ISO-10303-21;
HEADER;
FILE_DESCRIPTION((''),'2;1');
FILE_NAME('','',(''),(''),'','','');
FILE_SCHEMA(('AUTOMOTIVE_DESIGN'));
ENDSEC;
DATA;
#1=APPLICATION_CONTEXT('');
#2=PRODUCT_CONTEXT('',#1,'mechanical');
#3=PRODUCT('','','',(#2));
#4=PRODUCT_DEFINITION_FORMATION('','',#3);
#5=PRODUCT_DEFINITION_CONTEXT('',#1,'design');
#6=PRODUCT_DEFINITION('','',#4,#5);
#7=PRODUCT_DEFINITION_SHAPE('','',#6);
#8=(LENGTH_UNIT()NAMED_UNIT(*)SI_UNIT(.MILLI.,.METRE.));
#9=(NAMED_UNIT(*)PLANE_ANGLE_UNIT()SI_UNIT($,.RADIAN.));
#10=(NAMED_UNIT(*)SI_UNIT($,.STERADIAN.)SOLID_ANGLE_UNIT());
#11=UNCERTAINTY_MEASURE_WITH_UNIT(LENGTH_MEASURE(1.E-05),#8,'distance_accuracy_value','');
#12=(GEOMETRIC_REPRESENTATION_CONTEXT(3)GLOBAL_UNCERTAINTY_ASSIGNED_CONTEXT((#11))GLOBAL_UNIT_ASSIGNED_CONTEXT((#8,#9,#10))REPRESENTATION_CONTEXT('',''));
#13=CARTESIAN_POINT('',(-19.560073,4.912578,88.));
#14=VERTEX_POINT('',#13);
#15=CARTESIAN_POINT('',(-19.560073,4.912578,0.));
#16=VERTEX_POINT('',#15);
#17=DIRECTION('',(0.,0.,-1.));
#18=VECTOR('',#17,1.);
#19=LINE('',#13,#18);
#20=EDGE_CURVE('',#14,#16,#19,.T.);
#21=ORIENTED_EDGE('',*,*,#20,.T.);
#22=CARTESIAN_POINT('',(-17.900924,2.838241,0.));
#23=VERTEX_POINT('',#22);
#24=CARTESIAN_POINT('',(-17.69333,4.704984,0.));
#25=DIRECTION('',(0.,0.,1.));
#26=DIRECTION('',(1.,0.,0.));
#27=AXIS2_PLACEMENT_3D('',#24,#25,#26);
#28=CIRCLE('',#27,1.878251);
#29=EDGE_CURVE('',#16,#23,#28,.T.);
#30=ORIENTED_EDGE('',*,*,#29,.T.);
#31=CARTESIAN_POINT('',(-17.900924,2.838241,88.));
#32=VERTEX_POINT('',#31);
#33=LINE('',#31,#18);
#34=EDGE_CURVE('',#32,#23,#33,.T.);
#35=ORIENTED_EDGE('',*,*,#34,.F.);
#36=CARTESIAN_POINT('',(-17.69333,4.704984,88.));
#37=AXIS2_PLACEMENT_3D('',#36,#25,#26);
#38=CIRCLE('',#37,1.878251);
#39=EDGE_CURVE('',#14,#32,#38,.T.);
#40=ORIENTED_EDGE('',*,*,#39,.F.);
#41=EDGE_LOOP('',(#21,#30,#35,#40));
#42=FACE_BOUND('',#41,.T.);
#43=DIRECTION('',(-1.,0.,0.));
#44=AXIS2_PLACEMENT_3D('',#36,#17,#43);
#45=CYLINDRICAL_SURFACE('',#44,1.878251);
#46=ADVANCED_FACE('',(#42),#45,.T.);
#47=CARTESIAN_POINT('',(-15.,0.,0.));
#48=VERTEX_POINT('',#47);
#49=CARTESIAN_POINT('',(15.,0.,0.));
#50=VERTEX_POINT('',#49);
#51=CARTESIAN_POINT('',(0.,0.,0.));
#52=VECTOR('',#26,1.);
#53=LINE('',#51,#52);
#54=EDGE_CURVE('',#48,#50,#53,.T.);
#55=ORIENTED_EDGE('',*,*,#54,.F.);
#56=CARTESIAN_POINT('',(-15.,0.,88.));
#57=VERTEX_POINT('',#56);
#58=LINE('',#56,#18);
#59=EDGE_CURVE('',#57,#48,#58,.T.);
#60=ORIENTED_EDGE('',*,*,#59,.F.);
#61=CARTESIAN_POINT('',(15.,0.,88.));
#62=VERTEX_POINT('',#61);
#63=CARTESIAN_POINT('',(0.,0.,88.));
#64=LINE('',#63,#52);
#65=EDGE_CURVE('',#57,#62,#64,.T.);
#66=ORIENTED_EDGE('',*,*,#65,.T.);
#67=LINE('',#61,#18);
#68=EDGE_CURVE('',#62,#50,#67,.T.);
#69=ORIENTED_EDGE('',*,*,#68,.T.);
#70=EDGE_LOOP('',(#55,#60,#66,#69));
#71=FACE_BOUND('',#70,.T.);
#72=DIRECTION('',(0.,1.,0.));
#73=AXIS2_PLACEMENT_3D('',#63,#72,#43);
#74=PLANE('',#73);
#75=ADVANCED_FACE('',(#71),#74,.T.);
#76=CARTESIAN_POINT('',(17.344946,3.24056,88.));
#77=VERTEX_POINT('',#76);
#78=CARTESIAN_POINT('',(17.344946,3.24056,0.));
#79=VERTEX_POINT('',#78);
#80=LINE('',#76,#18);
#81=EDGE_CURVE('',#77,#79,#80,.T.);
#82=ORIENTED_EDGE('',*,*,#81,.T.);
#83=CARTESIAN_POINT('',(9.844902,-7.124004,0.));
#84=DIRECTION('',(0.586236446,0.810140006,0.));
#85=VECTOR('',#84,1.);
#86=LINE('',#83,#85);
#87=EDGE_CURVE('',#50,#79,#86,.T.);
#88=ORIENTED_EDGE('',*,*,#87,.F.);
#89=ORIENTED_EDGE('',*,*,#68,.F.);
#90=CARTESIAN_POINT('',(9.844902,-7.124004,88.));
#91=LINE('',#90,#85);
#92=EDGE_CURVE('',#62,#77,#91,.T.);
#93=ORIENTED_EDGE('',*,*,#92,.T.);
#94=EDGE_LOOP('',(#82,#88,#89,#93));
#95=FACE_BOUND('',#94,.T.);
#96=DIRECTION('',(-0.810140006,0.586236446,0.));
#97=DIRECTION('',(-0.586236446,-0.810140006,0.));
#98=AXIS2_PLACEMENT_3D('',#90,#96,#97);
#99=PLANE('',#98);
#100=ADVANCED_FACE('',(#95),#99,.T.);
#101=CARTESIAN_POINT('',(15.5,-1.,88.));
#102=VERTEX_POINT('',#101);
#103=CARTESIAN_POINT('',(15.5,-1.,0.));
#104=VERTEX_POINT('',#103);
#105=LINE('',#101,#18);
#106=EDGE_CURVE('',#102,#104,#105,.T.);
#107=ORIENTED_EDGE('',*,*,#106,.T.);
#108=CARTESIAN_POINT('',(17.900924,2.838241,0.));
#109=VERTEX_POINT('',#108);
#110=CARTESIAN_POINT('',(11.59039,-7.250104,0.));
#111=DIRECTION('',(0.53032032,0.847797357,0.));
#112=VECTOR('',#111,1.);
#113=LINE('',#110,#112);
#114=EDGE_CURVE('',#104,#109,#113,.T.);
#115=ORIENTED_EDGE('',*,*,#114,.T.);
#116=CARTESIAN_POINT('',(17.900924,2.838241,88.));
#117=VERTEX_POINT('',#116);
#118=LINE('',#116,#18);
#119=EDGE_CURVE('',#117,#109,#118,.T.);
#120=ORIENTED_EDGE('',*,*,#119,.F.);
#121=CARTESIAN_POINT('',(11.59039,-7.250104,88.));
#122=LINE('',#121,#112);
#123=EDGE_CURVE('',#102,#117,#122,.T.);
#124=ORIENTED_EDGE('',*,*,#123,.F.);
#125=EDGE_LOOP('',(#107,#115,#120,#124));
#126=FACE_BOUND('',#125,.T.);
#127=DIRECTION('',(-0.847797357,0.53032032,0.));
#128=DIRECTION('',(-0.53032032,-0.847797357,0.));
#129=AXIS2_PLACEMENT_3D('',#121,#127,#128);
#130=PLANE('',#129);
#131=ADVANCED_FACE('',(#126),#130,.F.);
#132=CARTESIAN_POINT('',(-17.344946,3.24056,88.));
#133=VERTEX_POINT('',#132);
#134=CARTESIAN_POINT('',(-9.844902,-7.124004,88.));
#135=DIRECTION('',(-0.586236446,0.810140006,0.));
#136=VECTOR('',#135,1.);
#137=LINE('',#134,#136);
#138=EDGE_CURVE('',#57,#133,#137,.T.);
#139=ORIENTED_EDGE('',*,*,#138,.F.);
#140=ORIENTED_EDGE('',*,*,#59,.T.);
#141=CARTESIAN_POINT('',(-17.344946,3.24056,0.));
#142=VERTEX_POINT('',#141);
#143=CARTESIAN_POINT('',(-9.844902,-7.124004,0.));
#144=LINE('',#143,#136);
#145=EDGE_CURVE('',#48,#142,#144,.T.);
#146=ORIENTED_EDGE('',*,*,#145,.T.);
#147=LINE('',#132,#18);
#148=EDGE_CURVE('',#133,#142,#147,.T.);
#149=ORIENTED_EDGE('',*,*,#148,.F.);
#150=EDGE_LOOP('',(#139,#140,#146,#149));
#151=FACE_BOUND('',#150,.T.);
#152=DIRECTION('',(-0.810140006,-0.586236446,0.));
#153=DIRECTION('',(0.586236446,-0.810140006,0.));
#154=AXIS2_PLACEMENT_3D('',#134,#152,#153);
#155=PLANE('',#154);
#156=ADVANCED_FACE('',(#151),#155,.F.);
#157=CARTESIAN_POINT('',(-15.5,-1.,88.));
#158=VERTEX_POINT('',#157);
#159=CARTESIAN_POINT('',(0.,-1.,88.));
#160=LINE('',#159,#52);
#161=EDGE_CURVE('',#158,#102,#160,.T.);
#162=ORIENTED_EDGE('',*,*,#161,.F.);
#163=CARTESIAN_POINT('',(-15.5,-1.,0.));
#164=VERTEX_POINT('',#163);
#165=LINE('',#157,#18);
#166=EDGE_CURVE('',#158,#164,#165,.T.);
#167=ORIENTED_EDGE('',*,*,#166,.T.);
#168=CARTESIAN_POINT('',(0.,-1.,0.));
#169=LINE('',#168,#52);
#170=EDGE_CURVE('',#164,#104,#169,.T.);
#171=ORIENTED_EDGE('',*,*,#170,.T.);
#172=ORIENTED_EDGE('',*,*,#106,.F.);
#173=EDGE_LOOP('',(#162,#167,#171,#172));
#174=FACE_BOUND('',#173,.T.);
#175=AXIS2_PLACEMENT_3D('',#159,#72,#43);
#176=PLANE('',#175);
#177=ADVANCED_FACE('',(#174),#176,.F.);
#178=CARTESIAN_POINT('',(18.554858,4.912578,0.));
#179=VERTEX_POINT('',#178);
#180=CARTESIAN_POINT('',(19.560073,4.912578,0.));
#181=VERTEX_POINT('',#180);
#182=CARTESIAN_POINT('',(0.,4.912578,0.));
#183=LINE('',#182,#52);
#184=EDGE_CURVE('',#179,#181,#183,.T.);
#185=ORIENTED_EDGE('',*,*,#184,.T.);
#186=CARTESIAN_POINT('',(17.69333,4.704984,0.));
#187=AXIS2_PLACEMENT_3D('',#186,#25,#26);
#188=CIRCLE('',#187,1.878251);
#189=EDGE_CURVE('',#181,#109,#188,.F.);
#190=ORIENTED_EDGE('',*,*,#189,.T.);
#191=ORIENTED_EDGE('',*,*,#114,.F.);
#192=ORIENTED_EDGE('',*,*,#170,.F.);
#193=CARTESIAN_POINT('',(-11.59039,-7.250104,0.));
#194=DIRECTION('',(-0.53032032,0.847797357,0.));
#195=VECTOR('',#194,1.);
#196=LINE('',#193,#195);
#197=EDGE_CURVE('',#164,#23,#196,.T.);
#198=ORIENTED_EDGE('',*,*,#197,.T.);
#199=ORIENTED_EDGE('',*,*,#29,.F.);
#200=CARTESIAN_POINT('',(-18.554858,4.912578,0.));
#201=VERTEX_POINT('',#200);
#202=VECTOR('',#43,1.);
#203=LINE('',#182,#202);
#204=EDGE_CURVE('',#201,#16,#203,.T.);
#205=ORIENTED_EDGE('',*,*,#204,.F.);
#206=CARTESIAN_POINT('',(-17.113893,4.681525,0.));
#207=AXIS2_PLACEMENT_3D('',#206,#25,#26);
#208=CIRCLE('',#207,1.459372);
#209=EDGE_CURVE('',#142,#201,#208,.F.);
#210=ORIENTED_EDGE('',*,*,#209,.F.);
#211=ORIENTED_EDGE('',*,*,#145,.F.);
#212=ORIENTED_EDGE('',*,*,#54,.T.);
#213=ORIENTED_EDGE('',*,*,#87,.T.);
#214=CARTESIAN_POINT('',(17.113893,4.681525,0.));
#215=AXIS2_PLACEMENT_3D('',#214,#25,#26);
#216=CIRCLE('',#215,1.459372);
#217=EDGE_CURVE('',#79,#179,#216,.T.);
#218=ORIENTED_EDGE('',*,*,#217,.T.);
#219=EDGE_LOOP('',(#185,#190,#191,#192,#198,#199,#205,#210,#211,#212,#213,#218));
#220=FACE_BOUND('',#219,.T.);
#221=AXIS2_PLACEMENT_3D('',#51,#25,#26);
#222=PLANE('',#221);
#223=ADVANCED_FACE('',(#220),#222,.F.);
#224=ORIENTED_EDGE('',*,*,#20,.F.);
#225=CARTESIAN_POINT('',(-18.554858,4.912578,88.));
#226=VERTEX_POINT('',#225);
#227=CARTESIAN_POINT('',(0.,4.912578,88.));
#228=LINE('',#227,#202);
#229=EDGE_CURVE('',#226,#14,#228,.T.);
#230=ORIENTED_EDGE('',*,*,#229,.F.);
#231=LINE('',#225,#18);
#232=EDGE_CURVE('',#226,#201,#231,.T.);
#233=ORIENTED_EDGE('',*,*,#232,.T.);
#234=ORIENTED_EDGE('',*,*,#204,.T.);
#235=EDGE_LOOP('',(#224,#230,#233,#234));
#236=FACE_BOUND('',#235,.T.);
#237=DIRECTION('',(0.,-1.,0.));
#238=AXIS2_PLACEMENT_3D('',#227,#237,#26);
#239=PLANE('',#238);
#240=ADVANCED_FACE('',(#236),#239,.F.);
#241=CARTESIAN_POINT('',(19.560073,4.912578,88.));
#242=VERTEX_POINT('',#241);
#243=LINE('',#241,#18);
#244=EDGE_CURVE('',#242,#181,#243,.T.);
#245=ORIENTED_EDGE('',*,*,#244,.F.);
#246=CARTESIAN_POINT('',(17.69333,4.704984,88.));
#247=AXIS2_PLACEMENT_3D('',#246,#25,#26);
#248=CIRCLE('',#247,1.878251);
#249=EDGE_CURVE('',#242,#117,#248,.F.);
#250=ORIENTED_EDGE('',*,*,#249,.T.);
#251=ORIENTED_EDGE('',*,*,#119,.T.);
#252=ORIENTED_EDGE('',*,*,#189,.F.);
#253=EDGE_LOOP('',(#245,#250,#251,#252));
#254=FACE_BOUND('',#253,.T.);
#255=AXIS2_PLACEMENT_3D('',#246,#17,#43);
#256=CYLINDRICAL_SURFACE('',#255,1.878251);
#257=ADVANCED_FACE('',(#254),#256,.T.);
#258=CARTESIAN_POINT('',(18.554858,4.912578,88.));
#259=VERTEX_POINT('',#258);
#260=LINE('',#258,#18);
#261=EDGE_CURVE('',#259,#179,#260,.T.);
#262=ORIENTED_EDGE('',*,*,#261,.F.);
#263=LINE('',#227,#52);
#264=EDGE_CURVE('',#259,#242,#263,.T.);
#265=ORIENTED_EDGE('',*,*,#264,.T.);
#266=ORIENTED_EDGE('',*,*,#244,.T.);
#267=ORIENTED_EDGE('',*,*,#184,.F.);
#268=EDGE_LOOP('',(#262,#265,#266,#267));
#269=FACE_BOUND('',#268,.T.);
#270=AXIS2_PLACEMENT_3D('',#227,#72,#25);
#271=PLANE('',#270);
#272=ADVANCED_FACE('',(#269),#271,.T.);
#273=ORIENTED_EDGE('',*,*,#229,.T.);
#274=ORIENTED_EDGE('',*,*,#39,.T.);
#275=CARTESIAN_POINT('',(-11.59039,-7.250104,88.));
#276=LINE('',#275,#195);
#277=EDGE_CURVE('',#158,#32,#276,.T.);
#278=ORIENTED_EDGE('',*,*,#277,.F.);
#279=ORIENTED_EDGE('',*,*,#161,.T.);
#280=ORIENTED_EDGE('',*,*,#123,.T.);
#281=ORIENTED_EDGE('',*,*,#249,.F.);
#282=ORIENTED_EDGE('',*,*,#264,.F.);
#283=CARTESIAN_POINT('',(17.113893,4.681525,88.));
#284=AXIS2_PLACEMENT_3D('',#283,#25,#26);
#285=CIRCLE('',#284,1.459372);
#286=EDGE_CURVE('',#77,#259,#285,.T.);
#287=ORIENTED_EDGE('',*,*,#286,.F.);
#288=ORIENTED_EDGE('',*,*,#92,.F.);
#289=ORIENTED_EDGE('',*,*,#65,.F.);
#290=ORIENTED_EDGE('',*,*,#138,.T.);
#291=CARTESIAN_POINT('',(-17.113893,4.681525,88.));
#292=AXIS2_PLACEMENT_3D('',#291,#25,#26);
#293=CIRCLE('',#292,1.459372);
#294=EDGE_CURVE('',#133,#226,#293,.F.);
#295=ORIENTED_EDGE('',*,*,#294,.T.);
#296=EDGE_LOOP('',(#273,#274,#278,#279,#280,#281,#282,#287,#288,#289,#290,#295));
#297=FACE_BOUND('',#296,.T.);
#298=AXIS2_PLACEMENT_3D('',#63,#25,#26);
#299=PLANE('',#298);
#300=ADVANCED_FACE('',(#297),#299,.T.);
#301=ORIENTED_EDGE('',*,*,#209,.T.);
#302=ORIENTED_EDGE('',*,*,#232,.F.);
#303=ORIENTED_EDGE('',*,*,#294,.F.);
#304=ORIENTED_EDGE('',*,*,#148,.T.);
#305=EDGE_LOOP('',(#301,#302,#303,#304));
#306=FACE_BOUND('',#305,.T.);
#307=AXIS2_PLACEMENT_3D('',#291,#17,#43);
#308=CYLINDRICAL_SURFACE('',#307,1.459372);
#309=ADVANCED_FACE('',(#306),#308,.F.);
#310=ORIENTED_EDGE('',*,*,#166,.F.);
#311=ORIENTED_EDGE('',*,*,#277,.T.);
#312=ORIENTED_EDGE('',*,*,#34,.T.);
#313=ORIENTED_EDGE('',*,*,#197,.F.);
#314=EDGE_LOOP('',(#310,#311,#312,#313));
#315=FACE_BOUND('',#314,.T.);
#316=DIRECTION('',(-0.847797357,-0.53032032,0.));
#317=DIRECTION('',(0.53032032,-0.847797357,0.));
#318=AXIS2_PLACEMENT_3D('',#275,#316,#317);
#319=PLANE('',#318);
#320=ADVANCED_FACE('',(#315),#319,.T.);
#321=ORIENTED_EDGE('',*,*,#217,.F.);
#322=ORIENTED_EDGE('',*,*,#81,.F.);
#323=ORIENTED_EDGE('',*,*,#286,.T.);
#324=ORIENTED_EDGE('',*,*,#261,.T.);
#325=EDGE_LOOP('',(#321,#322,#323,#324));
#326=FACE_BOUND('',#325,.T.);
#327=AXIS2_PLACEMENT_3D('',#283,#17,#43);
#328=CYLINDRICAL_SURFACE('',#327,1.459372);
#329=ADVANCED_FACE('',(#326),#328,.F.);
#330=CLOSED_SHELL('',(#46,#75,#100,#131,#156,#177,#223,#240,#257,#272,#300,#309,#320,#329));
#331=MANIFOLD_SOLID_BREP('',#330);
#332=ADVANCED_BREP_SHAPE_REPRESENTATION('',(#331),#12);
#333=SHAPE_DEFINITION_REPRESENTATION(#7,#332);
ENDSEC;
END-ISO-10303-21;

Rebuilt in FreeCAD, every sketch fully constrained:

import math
import FreeCAD as App
import Part
import Sketcher

doc = App.newDocument("Part")
body = doc.addObject("PartDesign::Body", "Body")

# Sketch on XY plane
sketch1 = doc.addObject("Sketcher::SketchObject", "Sketch")
body.addObject(sketch1)
sketch1.AttachmentSupport = (doc.XY_Plane, [""])
sketch1.MapMode = "FlatFace"
sketch1.addGeometry([
    Part.LineSegment(App.Vector(15, 0, 0), App.Vector(-15, 0, 0)),  # 0
    Part.LineSegment(App.Vector(-15, 0, 0), App.Vector(-17.3, 3.2, 0)),  # 1
    Part.ArcOfCircle(Part.Circle(App.Vector(-17.1, 4.7, 0), App.Vector(0, 0, 1), 1.5), math.radians(171), math.radians(261)),  # 2
    Part.LineSegment(App.Vector(-18.6, 4.9, 0), App.Vector(-19.6, 4.9, 0)),  # 3
    Part.ArcOfCircle(Part.Circle(App.Vector(-17.7, 4.7, 0), App.Vector(0, 0, 1), 1.9), math.radians(174), math.radians(264)),  # 4
    Part.LineSegment(App.Vector(-17.9, 2.8, 0), App.Vector(-15.5, -1, 0)),  # 5
    Part.LineSegment(App.Vector(-15.5, -1, 0), App.Vector(15.5, -1, 0)),  # 6
    Part.LineSegment(App.Vector(15.5, -1, 0), App.Vector(17.9, 2.8, 0)),  # 7
    Part.ArcOfCircle(Part.Circle(App.Vector(17.7, 4.7, 0), App.Vector(0, 0, 1), 1.9), math.radians(-84), math.radians(6)),  # 8
    Part.LineSegment(App.Vector(19.6, 4.9, 0), App.Vector(18.6, 4.9, 0)),  # 9
    Part.ArcOfCircle(Part.Circle(App.Vector(17.1, 4.7, 0), App.Vector(0, 0, 1), 1.5), math.radians(-81), math.radians(9)),  # 10
    Part.LineSegment(App.Vector(17.3, 3.2, 0), App.Vector(15, 0, 0)),  # 11
], False)
sketch1.addConstraint([
    Sketcher.Constraint("Coincident", 0, 2, 1, 1),
    Sketcher.Constraint("Coincident", 1, 2, 2, 2),
    Sketcher.Constraint("Coincident", 2, 1, 3, 1),
    Sketcher.Constraint("Coincident", 3, 2, 4, 1),
    Sketcher.Constraint("Coincident", 4, 2, 5, 1),
    Sketcher.Constraint("Coincident", 5, 2, 6, 1),
    Sketcher.Constraint("Coincident", 6, 2, 7, 1),
    Sketcher.Constraint("Coincident", 7, 2, 8, 1),
    Sketcher.Constraint("Coincident", 8, 2, 9, 1),
    Sketcher.Constraint("Coincident", 9, 2, 10, 2),
    Sketcher.Constraint("Coincident", 10, 1, 11, 1),
    Sketcher.Constraint("Coincident", 11, 2, 0, 1),
    Sketcher.Constraint("Horizontal", 0),
    Sketcher.Constraint("Horizontal", 3),
    Sketcher.Constraint("Horizontal", 6),
    Sketcher.Constraint("Horizontal", 9),
    Sketcher.Constraint("Equal", 4, 8),
    Sketcher.Constraint("Equal", 2, 10),
    Sketcher.Constraint("Symmetric", 0, 2, 11, 2, -1, 1),
    Sketcher.Constraint("Symmetric", 4, 3, 8, 3, -2),
    Sketcher.Constraint("Symmetric", 2, 3, 10, 3, -2),
    Sketcher.Constraint("Horizontal", 4, 2, 7, 2),
    Sketcher.Constraint("Horizontal", 3, 2, 8, 2),
    Sketcher.Constraint("Horizontal", 1, 2, 10, 1),
    Sketcher.Constraint("Equal", 5, 7),
    Sketcher.Constraint("DistanceX", 0, 2, 0, 1, 30.0),
    Sketcher.Constraint("DistanceX", 6, 1, 6, 2, 31.0),
    Sketcher.Constraint("Distance", 1, 4.0),
    Sketcher.Constraint("DistanceY", 5, 2, -1, 1, 1.0),
    Sketcher.Constraint("Radius", 2, 1.459372),
    Sketcher.Constraint("Radius", 4, 1.878251),
    Sketcher.Constraint("Distance", 5, 4.527309),
    Sketcher.Constraint("DistanceX", 3, 2, 3, 1, 1.005215),
    Sketcher.Constraint("DistanceX", 4, 3, -1, 1, 17.69333),
    Sketcher.Constraint("DistanceY", -1, 1, 1, 2, 3.24056),
    Sketcher.Constraint("DistanceY", -1, 1, 2, 1, 4.912578),
    Sketcher.Constraint("DistanceY", -1, 1, 4, 2, 2.838241),
])
pad1 = doc.addObject("PartDesign::Pad", "Pad")
body.addObject(pad1)
pad1.Profile = sketch1
pad1.Length = 88

doc.recompute()
